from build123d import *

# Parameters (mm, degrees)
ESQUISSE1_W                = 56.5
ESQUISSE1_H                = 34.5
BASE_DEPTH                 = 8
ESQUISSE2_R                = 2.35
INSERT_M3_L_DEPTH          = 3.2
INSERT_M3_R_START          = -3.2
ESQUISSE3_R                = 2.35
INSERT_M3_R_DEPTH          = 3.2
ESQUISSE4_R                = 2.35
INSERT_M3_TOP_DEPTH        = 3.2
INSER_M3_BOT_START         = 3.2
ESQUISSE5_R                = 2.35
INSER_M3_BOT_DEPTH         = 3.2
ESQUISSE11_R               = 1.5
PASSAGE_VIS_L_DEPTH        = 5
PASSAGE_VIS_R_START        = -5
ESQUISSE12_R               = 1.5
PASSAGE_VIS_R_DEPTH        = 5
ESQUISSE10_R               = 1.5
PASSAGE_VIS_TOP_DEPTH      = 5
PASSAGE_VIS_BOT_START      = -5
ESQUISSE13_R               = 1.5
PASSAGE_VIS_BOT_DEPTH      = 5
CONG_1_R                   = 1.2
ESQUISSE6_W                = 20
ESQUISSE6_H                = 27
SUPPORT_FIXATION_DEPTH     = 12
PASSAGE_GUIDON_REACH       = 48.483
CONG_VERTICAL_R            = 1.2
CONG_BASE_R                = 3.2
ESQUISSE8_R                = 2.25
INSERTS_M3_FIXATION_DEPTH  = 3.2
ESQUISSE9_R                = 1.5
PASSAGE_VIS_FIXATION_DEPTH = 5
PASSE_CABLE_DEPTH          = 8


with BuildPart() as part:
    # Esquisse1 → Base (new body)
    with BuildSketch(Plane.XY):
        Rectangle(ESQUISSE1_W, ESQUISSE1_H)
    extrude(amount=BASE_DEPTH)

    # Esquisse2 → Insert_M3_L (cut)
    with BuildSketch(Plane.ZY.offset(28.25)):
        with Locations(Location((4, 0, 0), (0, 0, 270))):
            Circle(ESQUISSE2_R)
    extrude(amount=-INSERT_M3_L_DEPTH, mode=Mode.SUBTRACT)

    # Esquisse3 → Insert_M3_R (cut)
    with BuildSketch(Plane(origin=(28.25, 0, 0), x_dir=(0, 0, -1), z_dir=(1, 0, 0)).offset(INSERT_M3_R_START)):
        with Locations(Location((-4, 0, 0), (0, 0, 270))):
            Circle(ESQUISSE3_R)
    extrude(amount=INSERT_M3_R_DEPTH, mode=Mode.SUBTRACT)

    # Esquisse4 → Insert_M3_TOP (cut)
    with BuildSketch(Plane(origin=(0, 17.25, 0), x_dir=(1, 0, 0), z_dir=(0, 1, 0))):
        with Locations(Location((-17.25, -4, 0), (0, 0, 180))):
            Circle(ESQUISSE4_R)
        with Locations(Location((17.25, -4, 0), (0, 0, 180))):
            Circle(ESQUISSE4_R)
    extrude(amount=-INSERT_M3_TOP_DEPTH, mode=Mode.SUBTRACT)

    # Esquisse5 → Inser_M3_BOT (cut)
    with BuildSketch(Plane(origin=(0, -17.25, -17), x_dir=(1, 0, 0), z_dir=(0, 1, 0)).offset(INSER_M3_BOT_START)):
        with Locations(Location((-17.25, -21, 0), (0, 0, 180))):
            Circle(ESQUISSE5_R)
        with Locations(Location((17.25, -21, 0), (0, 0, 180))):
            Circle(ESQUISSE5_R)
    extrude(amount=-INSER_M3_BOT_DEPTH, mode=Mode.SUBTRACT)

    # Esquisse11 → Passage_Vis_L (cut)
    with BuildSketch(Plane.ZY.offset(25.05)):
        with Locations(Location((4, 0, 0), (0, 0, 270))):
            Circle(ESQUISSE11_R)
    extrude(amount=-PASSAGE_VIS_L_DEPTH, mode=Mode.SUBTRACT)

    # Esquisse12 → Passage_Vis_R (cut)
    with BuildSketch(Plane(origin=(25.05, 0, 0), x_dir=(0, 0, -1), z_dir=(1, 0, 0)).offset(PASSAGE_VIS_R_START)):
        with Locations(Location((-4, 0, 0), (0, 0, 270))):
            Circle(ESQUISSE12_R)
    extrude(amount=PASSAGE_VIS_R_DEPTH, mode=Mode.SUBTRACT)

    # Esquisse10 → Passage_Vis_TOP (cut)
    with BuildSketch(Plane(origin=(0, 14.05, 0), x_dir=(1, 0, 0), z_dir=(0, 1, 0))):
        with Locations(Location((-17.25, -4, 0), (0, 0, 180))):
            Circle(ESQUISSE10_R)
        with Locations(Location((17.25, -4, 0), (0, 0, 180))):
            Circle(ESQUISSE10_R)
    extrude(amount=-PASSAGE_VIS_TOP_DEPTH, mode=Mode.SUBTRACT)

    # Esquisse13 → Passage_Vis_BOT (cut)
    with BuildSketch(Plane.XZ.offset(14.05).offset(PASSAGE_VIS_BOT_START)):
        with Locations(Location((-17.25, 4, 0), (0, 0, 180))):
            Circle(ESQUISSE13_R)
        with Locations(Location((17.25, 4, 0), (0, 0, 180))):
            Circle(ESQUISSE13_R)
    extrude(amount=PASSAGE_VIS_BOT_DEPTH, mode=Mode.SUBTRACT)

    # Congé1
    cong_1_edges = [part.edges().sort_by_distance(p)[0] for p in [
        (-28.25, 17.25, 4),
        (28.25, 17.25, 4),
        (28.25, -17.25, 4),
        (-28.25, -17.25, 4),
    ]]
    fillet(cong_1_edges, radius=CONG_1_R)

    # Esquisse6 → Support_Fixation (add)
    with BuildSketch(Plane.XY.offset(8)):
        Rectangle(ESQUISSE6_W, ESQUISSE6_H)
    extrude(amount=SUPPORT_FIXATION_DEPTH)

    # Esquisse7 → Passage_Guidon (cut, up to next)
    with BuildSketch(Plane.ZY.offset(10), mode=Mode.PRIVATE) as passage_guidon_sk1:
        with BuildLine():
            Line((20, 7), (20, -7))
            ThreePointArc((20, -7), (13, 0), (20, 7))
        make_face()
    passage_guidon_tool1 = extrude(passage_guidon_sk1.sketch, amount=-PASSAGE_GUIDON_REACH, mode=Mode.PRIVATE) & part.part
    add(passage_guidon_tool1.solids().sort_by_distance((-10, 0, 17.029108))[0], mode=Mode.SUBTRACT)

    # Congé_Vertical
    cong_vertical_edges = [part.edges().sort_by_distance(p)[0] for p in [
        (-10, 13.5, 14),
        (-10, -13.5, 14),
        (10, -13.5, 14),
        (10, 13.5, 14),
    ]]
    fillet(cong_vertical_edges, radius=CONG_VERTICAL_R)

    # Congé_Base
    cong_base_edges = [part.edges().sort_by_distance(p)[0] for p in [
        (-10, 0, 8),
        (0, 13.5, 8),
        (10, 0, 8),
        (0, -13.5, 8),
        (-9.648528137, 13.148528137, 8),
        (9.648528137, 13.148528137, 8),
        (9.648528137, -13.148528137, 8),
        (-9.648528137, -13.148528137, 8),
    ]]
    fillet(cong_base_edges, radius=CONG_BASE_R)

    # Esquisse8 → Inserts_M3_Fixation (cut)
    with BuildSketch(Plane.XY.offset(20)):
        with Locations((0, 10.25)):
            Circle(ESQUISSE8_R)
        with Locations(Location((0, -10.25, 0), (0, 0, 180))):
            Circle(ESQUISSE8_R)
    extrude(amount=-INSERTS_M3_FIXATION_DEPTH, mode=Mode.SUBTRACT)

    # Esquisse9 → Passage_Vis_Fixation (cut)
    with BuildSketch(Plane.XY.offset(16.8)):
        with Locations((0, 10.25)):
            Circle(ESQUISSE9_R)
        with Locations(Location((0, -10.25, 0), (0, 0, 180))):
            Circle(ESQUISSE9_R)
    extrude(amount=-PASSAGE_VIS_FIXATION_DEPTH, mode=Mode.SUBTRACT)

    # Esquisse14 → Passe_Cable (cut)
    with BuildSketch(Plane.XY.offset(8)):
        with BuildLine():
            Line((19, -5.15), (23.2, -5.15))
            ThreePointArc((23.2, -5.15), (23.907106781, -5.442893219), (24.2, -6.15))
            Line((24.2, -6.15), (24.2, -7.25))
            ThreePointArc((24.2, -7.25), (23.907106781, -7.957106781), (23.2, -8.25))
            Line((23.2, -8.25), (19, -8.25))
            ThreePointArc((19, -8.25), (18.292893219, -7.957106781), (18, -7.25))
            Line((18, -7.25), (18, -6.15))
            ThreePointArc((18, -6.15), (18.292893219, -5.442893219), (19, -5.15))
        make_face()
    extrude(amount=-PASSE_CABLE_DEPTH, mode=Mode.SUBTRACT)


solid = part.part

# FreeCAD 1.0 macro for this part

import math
import FreeCAD as App
import Part
import Sketcher
Q = App.Units.Quantity


def edges_at(feature, points):
    """Names of the edges that pass closest to the given points."""
    edges = feature.Shape.Edges
    near = lambda p: min(range(len(edges)), key=lambda i: edges[i].distToShape(Part.Vertex(*p))[0])
    return sorted({f"Edge{near(p) + 1}" for p in points})

doc = App.newDocument("Part")
body = doc.addObject("PartDesign::Body", "Body")

# Sketch on XY plane
sketch1 = doc.addObject("Sketcher::SketchObject", "Sketch")
body.addObject(sketch1)
sketch1.AttachmentSupport = (doc.XY_Plane, [""])
sketch1.MapMode = "FlatFace"
sketch1.addGeometry([
    Part.LineSegment(App.Vector(-28, 17, 0), App.Vector(-28, -17, 0)),
    Part.LineSegment(App.Vector(-28, -17, 0), App.Vector(28, -17, 0)),
    Part.LineSegment(App.Vector(28, -17, 0), App.Vector(28, 17, 0)),
    Part.LineSegment(App.Vector(28, 17, 0), App.Vector(-28, 17, 0)),
], False)
sketch1.addConstraint([
    Sketcher.Constraint("Coincident", 0, 2, 1, 1),
    Sketcher.Constraint("Coincident", 1, 2, 2, 1),
    Sketcher.Constraint("Coincident", 2, 2, 3, 1),
    Sketcher.Constraint("Coincident", 3, 2, 0, 1),
    Sketcher.Constraint("Vertical", 0),
    Sketcher.Constraint("Horizontal", 1),
    Sketcher.Constraint("Vertical", 2),
    Sketcher.Constraint("Horizontal", 3),
    Sketcher.Constraint("Symmetric", 0, 2, 2, 2, -1, 1),
    Sketcher.Constraint("DistanceX", 1, 1, 1, 2, Q("56.5 mm")),
    Sketcher.Constraint("DistanceY", 0, 2, 0, 1, Q("34.5 mm")),
])
pad1 = doc.addObject("PartDesign::Pad", "Pad")
body.addObject(pad1)
pad1.Profile = sketch1
pad1.Length = 8

# Sketch on YZ plane
sketch2 = doc.addObject("Sketcher::SketchObject", "Sketch001")
body.addObject(sketch2)
sketch2.AttachmentSupport = (doc.YZ_Plane, [""])
sketch2.MapMode = "FlatFace"
sketch2.AttachmentOffset = App.Placement(App.Vector(0, 0, -28.25), App.Rotation())
sketch2.addGeometry(Part.Circle(App.Vector(0, 4, 0), App.Vector(0, 0, 1), 2.4), False)
sketch2.addConstraint([
    Sketcher.Constraint("PointOnObject", 0, 3, -2),
    Sketcher.Constraint("Diameter", 0, Q("4.7 mm")),
    Sketcher.Constraint("DistanceY", -1, 1, 0, 3, Q("4 mm")),
])
pocket1 = doc.addObject("PartDesign::Pocket", "Pocket")
body.addObject(pocket1)
pocket1.Profile = sketch2
pocket1.Length = 3.2
pocket1.Reversed = True

# Sketch on YZ plane
sketch3 = doc.addObject("Sketcher::SketchObject", "Sketch002")
body.addObject(sketch3)
sketch3.AttachmentSupport = (doc.YZ_Plane, [""])
sketch3.MapMode = "FlatFace"
sketch3.AttachmentOffset = App.Placement(App.Vector(0, 0, 25.05), App.Rotation())
sketch3.addGeometry(Part.Circle(App.Vector(0, 4, 0), App.Vector(0, 0, 1), 2.4), False)
sketch3.addConstraint([
    Sketcher.Constraint("PointOnObject", 0, 3, -2),
    Sketcher.Constraint("Diameter", 0, Q("4.7 mm")),
    Sketcher.Constraint("DistanceY", -1, 1, 0, 3, Q("4 mm")),
])
pocket2 = doc.addObject("PartDesign::Pocket", "Pocket001")
body.addObject(pocket2)
pocket2.Profile = sketch3
pocket2.Length = 3.2
pocket2.Reversed = True

# Sketch on XZ plane
sketch4 = doc.addObject("Sketcher::SketchObject", "Sketch003")
body.addObject(sketch4)
sketch4.AttachmentSupport = (doc.XZ_Plane, [""])
sketch4.MapMode = "FlatFace"
sketch4.AttachmentOffset = App.Placement(App.Vector(0, 0, -17.25), App.Rotation())
sketch4.addGeometry([
    Part.Circle(App.Vector(-17.2, 4, 0), App.Vector(0, 0, 1), 2.4),
    Part.Circle(App.Vector(17.2, 4, 0), App.Vector(0, 0, 1), 2.4),
], False)
sketch4.addConstraint([
    Sketcher.Constraint("Equal", 0, 1),
    Sketcher.Constraint("Symmetric", 0, 3, 1, 3, -2),
    Sketcher.Constraint("Diameter", 0, Q("4.7 mm")),
    Sketcher.Constraint("DistanceY", -1, 1, 0, 3, Q("4 mm")),
    Sketcher.Constraint("DistanceX", 0, 3, 1, 3, Q("34.5 mm")),
])
pocket3 = doc.addObject("PartDesign::Pocket", "Pocket002")
body.addObject(pocket3)
pocket3.Profile = sketch4
pocket3.Length = 3.2
pocket3.Reversed = True

# Sketch on XZ plane
sketch5 = doc.addObject("Sketcher::SketchObject", "Sketch004")
body.addObject(sketch5)
sketch5.AttachmentSupport = (doc.XZ_Plane, [""])
sketch5.MapMode = "FlatFace"
sketch5.AttachmentOffset = App.Placement(App.Vector(0, 0, 14.05), App.Rotation())
sketch5.addGeometry([
    Part.Circle(App.Vector(-17.2, 4, 0), App.Vector(0, 0, 1), 2.4),
    Part.Circle(App.Vector(17.2, 4, 0), App.Vector(0, 0, 1), 2.4),
], False)
sketch5.addConstraint([
    Sketcher.Constraint("Equal", 0, 1),
    Sketcher.Constraint("Symmetric", 0, 3, 1, 3, -2),
    Sketcher.Constraint("Diameter", 0, Q("4.7 mm")),
    Sketcher.Constraint("DistanceY", -1, 1, 0, 3, Q("4 mm")),
    Sketcher.Constraint("DistanceX", 0, 3, 1, 3, Q("34.5 mm")),
])
pocket4 = doc.addObject("PartDesign::Pocket", "Pocket003")
body.addObject(pocket4)
pocket4.Profile = sketch5
pocket4.Length = 3.2
pocket4.Reversed = True

# Sketch on YZ plane
sketch6 = doc.addObject("Sketcher::SketchObject", "Sketch005")
body.addObject(sketch6)
sketch6.AttachmentSupport = (doc.YZ_Plane, [""])
sketch6.MapMode = "FlatFace"
sketch6.AttachmentOffset = App.Placement(App.Vector(0, 0, -25.05), App.Rotation())
sketch6.addGeometry(Part.Circle(App.Vector(0, 4, 0), App.Vector(0, 0, 1), 1.5), False)
sketch6.addConstraint([
    Sketcher.Constraint("PointOnObject", 0, 3, -2),
    Sketcher.Constraint("Diameter", 0, Q("3 mm")),
    Sketcher.Constraint("DistanceY", -1, 1, 0, 3, Q("4 mm")),
])
pocket5 = doc.addObject("PartDesign::Pocket", "Pocket004")
body.addObject(pocket5)
pocket5.Profile = sketch6
pocket5.Length = 5
pocket5.Reversed = True

# Sketch on YZ plane
sketch7 = doc.addObject("Sketcher::SketchObject", "Sketch006")
body.addObject(sketch7)
sketch7.AttachmentSupport = (doc.YZ_Plane, [""])
sketch7.MapMode = "FlatFace"
sketch7.AttachmentOffset = App.Placement(App.Vector(0, 0, 20.05), App.Rotation())
sketch7.addGeometry(Part.Circle(App.Vector(0, 4, 0), App.Vector(0, 0, 1), 1.5), False)
sketch7.addConstraint([
    Sketcher.Constraint("PointOnObject", 0, 3, -2),
    Sketcher.Constraint("Diameter", 0, Q("3 mm")),
    Sketcher.Constraint("DistanceY", -1, 1, 0, 3, Q("4 mm")),
])
pocket6 = doc.addObject("PartDesign::Pocket", "Pocket005")
body.addObject(pocket6)
pocket6.Profile = sketch7
pocket6.Length = 5
pocket6.Reversed = True

# Sketch on XZ plane
sketch8 = doc.addObject("Sketcher::SketchObject", "Sketch007")
body.addObject(sketch8)
sketch8.AttachmentSupport = (doc.XZ_Plane, [""])
sketch8.MapMode = "FlatFace"
sketch8.AttachmentOffset = App.Placement(App.Vector(0, 0, -14.05), App.Rotation())
sketch8.addGeometry([
    Part.Circle(App.Vector(-17.2, 4, 0), App.Vector(0, 0, 1), 1.5),
    Part.Circle(App.Vector(17.2, 4, 0), App.Vector(0, 0, 1), 1.5),
], False)
sketch8.addConstraint([
    Sketcher.Constraint("Equal", 0, 1),
    Sketcher.Constraint("Symmetric", 0, 3, 1, 3, -2),
    Sketcher.Constraint("Diameter", 0, Q("3 mm")),
    Sketcher.Constraint("DistanceY", -1, 1, 0, 3, Q("4 mm")),
    Sketcher.Constraint("DistanceX", 0, 3, 1, 3, Q("34.5 mm")),
])
pocket7 = doc.addObject("PartDesign::Pocket", "Pocket006")
body.addObject(pocket7)
pocket7.Profile = sketch8
pocket7.Length = 5
pocket7.Reversed = True

# Sketch on XZ plane
sketch9 = doc.addObject("Sketcher::SketchObject", "Sketch008")
body.addObject(sketch9)
sketch9.AttachmentSupport = (doc.XZ_Plane, [""])
sketch9.MapMode = "FlatFace"
sketch9.AttachmentOffset = App.Placement(App.Vector(0, 0, 9.05), App.Rotation())
sketch9.addGeometry([
    Part.Circle(App.Vector(-17.2, 4, 0), App.Vector(0, 0, 1), 1.5),
    Part.Circle(App.Vector(17.2, 4, 0), App.Vector(0, 0, 1), 1.5),
], False)
sketch9.addConstraint([
    Sketcher.Constraint("Equal", 0, 1),
    Sketcher.Constraint("Symmetric", 0, 3, 1, 3, -2),
    Sketcher.Constraint("Diameter", 0, Q("3 mm")),
    Sketcher.Constraint("DistanceY", -1, 1, 0, 3, Q("4 mm")),
    Sketcher.Constraint("DistanceX", 0, 3, 1, 3, Q("34.5 mm")),
])
pocket8 = doc.addObject("PartDesign::Pocket", "Pocket007")
body.addObject(pocket8)
pocket8.Profile = sketch9
pocket8.Length = 5
pocket8.Reversed = True
doc.recompute()

fillet = doc.addObject("PartDesign::Fillet", "Fillet")
body.addObject(fillet)
fillet.Base = (pocket8, edges_at(pocket8, [
    (-28.25, 17.25, 4),
    (28.25, 17.25, 4),
    (28.25, -17.25, 4),
    (-28.25, -17.25, 4),
]))
fillet.Radius = 1.2

# Sketch on XY plane
sketch10 = doc.addObject("Sketcher::SketchObject", "Sketch009")
body.addObject(sketch10)
sketch10.AttachmentSupport = (doc.XY_Plane, [""])
sketch10.MapMode = "FlatFace"
sketch10.AttachmentOffset = App.Placement(App.Vector(0, 0, 8), App.Rotation())
sketch10.addGeometry([
    Part.LineSegment(App.Vector(-10, 14, 0), App.Vector(-10, -14, 0)),
    Part.LineSegment(App.Vector(-10, -14, 0), App.Vector(10, -14, 0)),
    Part.LineSegment(App.Vector(10, -14, 0), App.Vector(10, 14, 0)),
    Part.LineSegment(App.Vector(10, 14, 0), App.Vector(-10, 14, 0)),
], False)
sketch10.addConstraint([
    Sketcher.Constraint("Coincident", 0, 2, 1, 1),
    Sketcher.Constraint("Coincident", 1, 2, 2, 1),
    Sketcher.Constraint("Coincident", 2, 2, 3, 1),
    Sketcher.Constraint("Coincident", 3, 2, 0, 1),
    Sketcher.Constraint("Vertical", 0),
    Sketcher.Constraint("Horizontal", 1),
    Sketcher.Constraint("Vertical", 2),
    Sketcher.Constraint("Horizontal", 3),
    Sketcher.Constraint("Symmetric", 0, 2, 2, 2, -1, 1),
    Sketcher.Constraint("DistanceX", 1, 1, 1, 2, Q("20 mm")),
    Sketcher.Constraint("DistanceY", 0, 2, 0, 1, Q("27 mm")),
])
pad2 = doc.addObject("PartDesign::Pad", "Pad001")
body.addObject(pad2)
pad2.Profile = sketch10
pad2.Length = 12

# Sketch on YZ plane
sketch11 = doc.addObject("Sketcher::SketchObject", "Sketch010")
body.addObject(sketch11)
sketch11.AttachmentSupport = (doc.YZ_Plane, [""])
sketch11.MapMode = "FlatFace"
sketch11.AttachmentOffset = App.Placement(App.Vector(0, 0, -10), App.Rotation())
sketch11.addGeometry([
    Part.LineSegment(App.Vector(-7, 20, 0), App.Vector(7, 20, 0)),
    Part.ArcOfCircle(Part.Circle(App.Vector(0, 20, 0), App.Vector(0, 0, 1), 7), math.radians(180), math.radians(360)),
], False)
sketch11.addConstraint([
    Sketcher.Constraint("Coincident", 0, 1, 1, 1),
    Sketcher.Constraint("Coincident", 1, 2, 0, 2),
    Sketcher.Constraint("Horizontal", 0),
    Sketcher.Constraint("PointOnObject", 1, 3, -2),
    Sketcher.Constraint("Horizontal", 1, 3, 0, 1),
    Sketcher.Constraint("Radius", 1, Q("7 mm")),
    Sketcher.Constraint("DistanceY", -1, 1, 1, 3, Q("20 mm")),
])
pocket9 = doc.addObject("PartDesign::Pocket", "Pocket008")
body.addObject(pocket9)
pocket9.Profile = sketch11
pocket9.Type = "UpToFirst"
pocket9.Reversed = True
doc.recompute()

fillet2 = doc.addObject("PartDesign::Fillet", "Fillet001")
body.addObject(fillet2)
fillet2.Base = (pocket9, edges_at(pocket9, [
    (-10, 13.5, 14),
    (-10, -13.5, 14),
    (10, -13.5, 14),
    (10, 13.5, 14),
]))
fillet2.Radius = 1.2
doc.recompute()

fillet3 = doc.addObject("PartDesign::Fillet", "Fillet002")
body.addObject(fillet3)
fillet3.Base = (fillet2, edges_at(fillet2, [
    (-10, 0, 8),
    (0, 13.5, 8),
    (10, 0, 8),
    (0, -13.5, 8),
    (-9.649, 13.149, 8),
    (9.649, 13.149, 8),
    (9.649, -13.149, 8),
    (-9.649, -13.149, 8),
]))
fillet3.Radius = 3.2

# Sketch on XY plane
sketch12 = doc.addObject("Sketcher::SketchObject", "Sketch011")
body.addObject(sketch12)
sketch12.AttachmentSupport = (doc.XY_Plane, [""])
sketch12.MapMode = "FlatFace"
sketch12.AttachmentOffset = App.Placement(App.Vector(0, 0, 20), App.Rotation())
sketch12.addGeometry([
    Part.Circle(App.Vector(0, 10.2, 0), App.Vector(0, 0, 1), 2.2),
    Part.Circle(App.Vector(0, -10.2, 0), App.Vector(0, 0, 1), 2.2),
], False)
sketch12.addConstraint([
    Sketcher.Constraint("Equal", 0, 1),
    Sketcher.Constraint("Symmetric", 0, 3, 1, 3, -1, 1),
    Sketcher.Constraint("PointOnObject", 0, 3, -2),
    Sketcher.Constraint("Diameter", 0, Q("4.5 mm")),
    Sketcher.Constraint("DistanceY", 1, 3, 0, 3, Q("20.5 mm")),
])
pocket10 = doc.addObject("PartDesign::Pocket", "Pocket009")
body.addObject(pocket10)
pocket10.Profile = sketch12
pocket10.Length = 3.2

# Sketch on XY plane
sketch13 = doc.addObject("Sketcher::SketchObject", "Sketch012")
body.addObject(sketch13)
sketch13.AttachmentSupport = (doc.XY_Plane, [""])
sketch13.MapMode = "FlatFace"
sketch13.AttachmentOffset = App.Placement(App.Vector(0, 0, 16.8), App.Rotation())
sketch13.addGeometry([
    Part.Circle(App.Vector(0, 10.2, 0), App.Vector(0, 0, 1), 1.5),
    Part.Circle(App.Vector(0, -10.2, 0), App.Vector(0, 0, 1), 1.5),
], False)
sketch13.addConstraint([
    Sketcher.Constraint("Equal", 0, 1),
    Sketcher.Constraint("Symmetric", 0, 3, 1, 3, -1, 1),
    Sketcher.Constraint("PointOnObject", 0, 3, -2),
    Sketcher.Constraint("Diameter", 0, Q("3 mm")),
    Sketcher.Constraint("DistanceY", 1, 3, 0, 3, Q("20.5 mm")),
])
pocket11 = doc.addObject("PartDesign::Pocket", "Pocket010")
body.addObject(pocket11)
pocket11.Profile = sketch13
pocket11.Length = 5

# Sketch on XY plane
sketch14 = doc.addObject("Sketcher::SketchObject", "Sketch013")
body.addObject(sketch14)
sketch14.AttachmentSupport = (doc.XY_Plane, [""])
sketch14.MapMode = "FlatFace"
sketch14.AttachmentOffset = App.Placement(App.Vector(0, 0, 8), App.Rotation())
sketch14.addGeometry([
    Part.LineSegment(App.Vector(23.2, -5.2, 0), App.Vector(19, -5.2, 0)),  # 0
    Part.ArcOfCircle(Part.Circle(App.Vector(19, -6.2, 0), App.Vector(0, 0, 1), 1), math.radians(90), math.radians(180)),  # 1
    Part.LineSegment(App.Vector(18, -6.2, 0), App.Vector(18, -7.2, 0)),  # 2
    Part.ArcOfCircle(Part.Circle(App.Vector(19, -7.2, 0), App.Vector(0, 0, 1), 1), math.radians(-180), math.radians(-90)),  # 3
    Part.LineSegment(App.Vector(19, -8.2, 0), App.Vector(23.2, -8.2, 0)),  # 4
    Part.ArcOfCircle(Part.Circle(App.Vector(23.2, -7.2, 0), App.Vector(0, 0, 1), 1), math.radians(-90), math.radians(0)),  # 5
    Part.LineSegment(App.Vector(24.2, -7.2, 0), App.Vector(24.2, -6.2, 0)),  # 6
    Part.ArcOfCircle(Part.Circle(App.Vector(23.2, -6.2, 0), App.Vector(0, 0, 1), 1), math.radians(0), math.radians(90)),  # 7
], False)
sketch14.addConstraint([
    Sketcher.Constraint("Tangent", 0, 2, 1, 1),
    Sketcher.Constraint("Tangent", 1, 2, 2, 1),
    Sketcher.Constraint("Tangent", 2, 2, 3, 1),
    Sketcher.Constraint("Tangent", 3, 2, 4, 1),
    Sketcher.Constraint("Tangent", 4, 2, 5, 1),
    Sketcher.Constraint("Tangent", 5, 2, 6, 1),
    Sketcher.Constraint("Tangent", 6, 2, 7, 1),
    Sketcher.Constraint("Tangent", 7, 2, 0, 1),
    Sketcher.Constraint("Horizontal", 0),
    Sketcher.Constraint("Vertical", 2),
    Sketcher.Constraint("Horizontal", 4),
    Sketcher.Constraint("Vertical", 6),
    Sketcher.Constraint("Equal", 1, 3),
    Sketcher.Constraint("Equal", 3, 5),
    Sketcher.Constraint("Equal", 5, 7),
    Sketcher.Constraint("Radius", 1, Q("1 mm")),
    Sketcher.Constraint("DistanceX", 0, 2, 0, 1, Q("4.2 mm")),
    Sketcher.Constraint("DistanceY", 2, 2, 2, 1, Q("1.1 mm")),
    Sketcher.Constraint("DistanceX", -1, 1, 1, 3, Q("19 mm")),
    Sketcher.Constraint("DistanceY", 1, 3, -1, 1, Q("6.15 mm")),
])
pocket12 = doc.addObject("PartDesign::Pocket", "Pocket011")
body.addObject(pocket12)
pocket12.Profile = sketch14
pocket12.Length = 8

doc.recompute()
